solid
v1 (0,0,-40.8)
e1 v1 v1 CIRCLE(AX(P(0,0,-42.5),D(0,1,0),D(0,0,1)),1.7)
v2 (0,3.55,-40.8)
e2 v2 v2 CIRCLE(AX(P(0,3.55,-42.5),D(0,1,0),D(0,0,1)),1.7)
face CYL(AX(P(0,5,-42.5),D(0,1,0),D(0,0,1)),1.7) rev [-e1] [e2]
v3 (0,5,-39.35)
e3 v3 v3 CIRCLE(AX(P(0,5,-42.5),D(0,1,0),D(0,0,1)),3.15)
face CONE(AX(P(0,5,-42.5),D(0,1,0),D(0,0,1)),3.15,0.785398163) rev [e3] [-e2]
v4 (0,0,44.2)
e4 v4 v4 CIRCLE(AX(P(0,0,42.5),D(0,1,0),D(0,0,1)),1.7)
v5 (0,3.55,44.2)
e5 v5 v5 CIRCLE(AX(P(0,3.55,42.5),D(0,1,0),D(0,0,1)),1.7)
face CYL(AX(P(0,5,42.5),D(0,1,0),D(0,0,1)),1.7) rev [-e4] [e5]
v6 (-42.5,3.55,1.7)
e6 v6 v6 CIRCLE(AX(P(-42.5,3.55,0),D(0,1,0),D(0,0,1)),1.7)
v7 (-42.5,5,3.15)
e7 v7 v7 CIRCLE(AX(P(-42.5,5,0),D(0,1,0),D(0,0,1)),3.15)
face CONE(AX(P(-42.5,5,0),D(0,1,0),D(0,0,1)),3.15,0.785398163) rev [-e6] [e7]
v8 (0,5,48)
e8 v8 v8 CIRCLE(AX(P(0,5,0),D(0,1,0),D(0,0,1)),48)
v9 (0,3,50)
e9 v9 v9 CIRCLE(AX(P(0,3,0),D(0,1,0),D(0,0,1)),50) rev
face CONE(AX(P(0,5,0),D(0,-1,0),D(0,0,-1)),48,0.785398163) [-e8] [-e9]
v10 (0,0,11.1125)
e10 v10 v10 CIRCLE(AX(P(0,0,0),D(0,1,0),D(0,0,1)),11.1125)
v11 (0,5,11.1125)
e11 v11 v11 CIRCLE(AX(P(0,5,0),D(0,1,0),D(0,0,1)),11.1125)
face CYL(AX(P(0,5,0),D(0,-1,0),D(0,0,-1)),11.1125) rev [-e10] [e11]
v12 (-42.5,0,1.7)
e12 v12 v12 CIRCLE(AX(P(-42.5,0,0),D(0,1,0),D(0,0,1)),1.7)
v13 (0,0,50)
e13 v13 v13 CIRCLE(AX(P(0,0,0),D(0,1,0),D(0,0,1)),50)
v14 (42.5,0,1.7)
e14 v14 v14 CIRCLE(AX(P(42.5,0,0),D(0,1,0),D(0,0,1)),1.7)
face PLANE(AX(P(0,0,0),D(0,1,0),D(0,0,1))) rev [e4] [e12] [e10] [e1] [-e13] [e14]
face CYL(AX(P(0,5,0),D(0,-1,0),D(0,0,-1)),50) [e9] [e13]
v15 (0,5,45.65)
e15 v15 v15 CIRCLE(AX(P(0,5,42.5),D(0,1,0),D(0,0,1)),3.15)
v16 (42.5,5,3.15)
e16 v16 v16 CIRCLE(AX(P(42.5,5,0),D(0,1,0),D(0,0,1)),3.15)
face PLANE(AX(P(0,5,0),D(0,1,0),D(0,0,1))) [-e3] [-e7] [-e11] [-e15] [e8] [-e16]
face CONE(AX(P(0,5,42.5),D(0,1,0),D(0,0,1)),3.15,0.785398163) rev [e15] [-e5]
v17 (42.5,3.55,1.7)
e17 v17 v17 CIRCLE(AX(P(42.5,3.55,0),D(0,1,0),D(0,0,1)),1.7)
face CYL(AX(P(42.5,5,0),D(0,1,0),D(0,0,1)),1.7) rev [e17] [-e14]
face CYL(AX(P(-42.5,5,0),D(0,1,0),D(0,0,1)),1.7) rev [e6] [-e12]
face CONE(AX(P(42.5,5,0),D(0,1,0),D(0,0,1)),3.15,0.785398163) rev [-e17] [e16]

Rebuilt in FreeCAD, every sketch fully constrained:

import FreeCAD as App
import Part
import Sketcher


def edges_at(feature, points):
    """Names of the edges that pass closest to the given points."""
    edges = feature.Shape.Edges
    near = lambda p: min(range(len(edges)), key=lambda i: edges[i].distToShape(Part.Vertex(*p))[0])
    return sorted({f"Edge{near(p) + 1}" for p in points})

doc = App.newDocument("Part")
body = doc.addObject("PartDesign::Body", "Body")

sketch1 = body.newObject("Sketcher::SketchObject", "Sketch")
sketch1.AttachmentSupport = (doc.getObject("XZ_Plane"), [""])
sketch1.MapMode = "FlatFace"
sketch1.addGeometry([
    Part.Circle(App.Vector(0, 0, 0), App.Vector(0, 0, 1), 50),
    Part.Circle(App.Vector(0, 0, 0), App.Vector(0, 0, 1), 11),
], False)
sketch1.addConstraint([
    Sketcher.Constraint("Coincident", 0, 3, -1, 1),
    Sketcher.Constraint("Coincident", 1, 3, -1, 1),
    Sketcher.Constraint("Diameter", 0, 100.0),
    Sketcher.Constraint("Diameter", 1, 22.225),
])
pad1 = body.newObject("PartDesign::Pad", "Pad")
pad1.Profile = sketch1
pad1.Length = 5
pad1.Reversed = True

sketch2 = body.newObject("Sketcher::SketchObject", "Sketch001")
sketch2.AttachmentSupport = (doc.getObject("XZ_Plane"), [""])
sketch2.MapMode = "FlatFace"
sketch2.AttachmentOffset = App.Placement(App.Vector(0, 0, -5), App.Rotation())
sketch2.addGeometry(Part.Circle(App.Vector(0, -42.5, 0), App.Vector(0, 0, 1), 1.7), False)
sketch2.addConstraint([
    Sketcher.Constraint("PointOnObject", 0, 3, -2),
    Sketcher.Constraint("Diameter", 0, 3.4),
    Sketcher.Constraint("DistanceY", 0, 3, -1, 1, 42.5),
])
doc.recompute()
hole = body.newObject("PartDesign::Hole", "Hole")
hole.Profile = sketch2
hole.ThreadType = "None"
hole.Diameter = 3.4
hole.DepthType = "ThroughAll"
hole.HoleCutType = "Countersink"
hole.HoleCutDiameter = 6.3
hole.HoleCutCountersinkAngle = 90
hole.Reversed = True
doc.recompute()

polarpattern = body.newObject("PartDesign::PolarPattern", "PolarPattern")
polarpattern.Originals = [hole]
polarpattern.Axis = (doc.getObject("Y_Axis"), [""])
polarpattern.Angle = 360
polarpattern.Occurrences = 4
body.Tip = polarpattern
doc.recompute()

chamfer = body.newObject("PartDesign::Chamfer", "Chamfer")
chamfer.Base = (polarpattern, edges_at(polarpattern, [(0, 5, -50)]))
chamfer.Size = 2

doc.recompute()
